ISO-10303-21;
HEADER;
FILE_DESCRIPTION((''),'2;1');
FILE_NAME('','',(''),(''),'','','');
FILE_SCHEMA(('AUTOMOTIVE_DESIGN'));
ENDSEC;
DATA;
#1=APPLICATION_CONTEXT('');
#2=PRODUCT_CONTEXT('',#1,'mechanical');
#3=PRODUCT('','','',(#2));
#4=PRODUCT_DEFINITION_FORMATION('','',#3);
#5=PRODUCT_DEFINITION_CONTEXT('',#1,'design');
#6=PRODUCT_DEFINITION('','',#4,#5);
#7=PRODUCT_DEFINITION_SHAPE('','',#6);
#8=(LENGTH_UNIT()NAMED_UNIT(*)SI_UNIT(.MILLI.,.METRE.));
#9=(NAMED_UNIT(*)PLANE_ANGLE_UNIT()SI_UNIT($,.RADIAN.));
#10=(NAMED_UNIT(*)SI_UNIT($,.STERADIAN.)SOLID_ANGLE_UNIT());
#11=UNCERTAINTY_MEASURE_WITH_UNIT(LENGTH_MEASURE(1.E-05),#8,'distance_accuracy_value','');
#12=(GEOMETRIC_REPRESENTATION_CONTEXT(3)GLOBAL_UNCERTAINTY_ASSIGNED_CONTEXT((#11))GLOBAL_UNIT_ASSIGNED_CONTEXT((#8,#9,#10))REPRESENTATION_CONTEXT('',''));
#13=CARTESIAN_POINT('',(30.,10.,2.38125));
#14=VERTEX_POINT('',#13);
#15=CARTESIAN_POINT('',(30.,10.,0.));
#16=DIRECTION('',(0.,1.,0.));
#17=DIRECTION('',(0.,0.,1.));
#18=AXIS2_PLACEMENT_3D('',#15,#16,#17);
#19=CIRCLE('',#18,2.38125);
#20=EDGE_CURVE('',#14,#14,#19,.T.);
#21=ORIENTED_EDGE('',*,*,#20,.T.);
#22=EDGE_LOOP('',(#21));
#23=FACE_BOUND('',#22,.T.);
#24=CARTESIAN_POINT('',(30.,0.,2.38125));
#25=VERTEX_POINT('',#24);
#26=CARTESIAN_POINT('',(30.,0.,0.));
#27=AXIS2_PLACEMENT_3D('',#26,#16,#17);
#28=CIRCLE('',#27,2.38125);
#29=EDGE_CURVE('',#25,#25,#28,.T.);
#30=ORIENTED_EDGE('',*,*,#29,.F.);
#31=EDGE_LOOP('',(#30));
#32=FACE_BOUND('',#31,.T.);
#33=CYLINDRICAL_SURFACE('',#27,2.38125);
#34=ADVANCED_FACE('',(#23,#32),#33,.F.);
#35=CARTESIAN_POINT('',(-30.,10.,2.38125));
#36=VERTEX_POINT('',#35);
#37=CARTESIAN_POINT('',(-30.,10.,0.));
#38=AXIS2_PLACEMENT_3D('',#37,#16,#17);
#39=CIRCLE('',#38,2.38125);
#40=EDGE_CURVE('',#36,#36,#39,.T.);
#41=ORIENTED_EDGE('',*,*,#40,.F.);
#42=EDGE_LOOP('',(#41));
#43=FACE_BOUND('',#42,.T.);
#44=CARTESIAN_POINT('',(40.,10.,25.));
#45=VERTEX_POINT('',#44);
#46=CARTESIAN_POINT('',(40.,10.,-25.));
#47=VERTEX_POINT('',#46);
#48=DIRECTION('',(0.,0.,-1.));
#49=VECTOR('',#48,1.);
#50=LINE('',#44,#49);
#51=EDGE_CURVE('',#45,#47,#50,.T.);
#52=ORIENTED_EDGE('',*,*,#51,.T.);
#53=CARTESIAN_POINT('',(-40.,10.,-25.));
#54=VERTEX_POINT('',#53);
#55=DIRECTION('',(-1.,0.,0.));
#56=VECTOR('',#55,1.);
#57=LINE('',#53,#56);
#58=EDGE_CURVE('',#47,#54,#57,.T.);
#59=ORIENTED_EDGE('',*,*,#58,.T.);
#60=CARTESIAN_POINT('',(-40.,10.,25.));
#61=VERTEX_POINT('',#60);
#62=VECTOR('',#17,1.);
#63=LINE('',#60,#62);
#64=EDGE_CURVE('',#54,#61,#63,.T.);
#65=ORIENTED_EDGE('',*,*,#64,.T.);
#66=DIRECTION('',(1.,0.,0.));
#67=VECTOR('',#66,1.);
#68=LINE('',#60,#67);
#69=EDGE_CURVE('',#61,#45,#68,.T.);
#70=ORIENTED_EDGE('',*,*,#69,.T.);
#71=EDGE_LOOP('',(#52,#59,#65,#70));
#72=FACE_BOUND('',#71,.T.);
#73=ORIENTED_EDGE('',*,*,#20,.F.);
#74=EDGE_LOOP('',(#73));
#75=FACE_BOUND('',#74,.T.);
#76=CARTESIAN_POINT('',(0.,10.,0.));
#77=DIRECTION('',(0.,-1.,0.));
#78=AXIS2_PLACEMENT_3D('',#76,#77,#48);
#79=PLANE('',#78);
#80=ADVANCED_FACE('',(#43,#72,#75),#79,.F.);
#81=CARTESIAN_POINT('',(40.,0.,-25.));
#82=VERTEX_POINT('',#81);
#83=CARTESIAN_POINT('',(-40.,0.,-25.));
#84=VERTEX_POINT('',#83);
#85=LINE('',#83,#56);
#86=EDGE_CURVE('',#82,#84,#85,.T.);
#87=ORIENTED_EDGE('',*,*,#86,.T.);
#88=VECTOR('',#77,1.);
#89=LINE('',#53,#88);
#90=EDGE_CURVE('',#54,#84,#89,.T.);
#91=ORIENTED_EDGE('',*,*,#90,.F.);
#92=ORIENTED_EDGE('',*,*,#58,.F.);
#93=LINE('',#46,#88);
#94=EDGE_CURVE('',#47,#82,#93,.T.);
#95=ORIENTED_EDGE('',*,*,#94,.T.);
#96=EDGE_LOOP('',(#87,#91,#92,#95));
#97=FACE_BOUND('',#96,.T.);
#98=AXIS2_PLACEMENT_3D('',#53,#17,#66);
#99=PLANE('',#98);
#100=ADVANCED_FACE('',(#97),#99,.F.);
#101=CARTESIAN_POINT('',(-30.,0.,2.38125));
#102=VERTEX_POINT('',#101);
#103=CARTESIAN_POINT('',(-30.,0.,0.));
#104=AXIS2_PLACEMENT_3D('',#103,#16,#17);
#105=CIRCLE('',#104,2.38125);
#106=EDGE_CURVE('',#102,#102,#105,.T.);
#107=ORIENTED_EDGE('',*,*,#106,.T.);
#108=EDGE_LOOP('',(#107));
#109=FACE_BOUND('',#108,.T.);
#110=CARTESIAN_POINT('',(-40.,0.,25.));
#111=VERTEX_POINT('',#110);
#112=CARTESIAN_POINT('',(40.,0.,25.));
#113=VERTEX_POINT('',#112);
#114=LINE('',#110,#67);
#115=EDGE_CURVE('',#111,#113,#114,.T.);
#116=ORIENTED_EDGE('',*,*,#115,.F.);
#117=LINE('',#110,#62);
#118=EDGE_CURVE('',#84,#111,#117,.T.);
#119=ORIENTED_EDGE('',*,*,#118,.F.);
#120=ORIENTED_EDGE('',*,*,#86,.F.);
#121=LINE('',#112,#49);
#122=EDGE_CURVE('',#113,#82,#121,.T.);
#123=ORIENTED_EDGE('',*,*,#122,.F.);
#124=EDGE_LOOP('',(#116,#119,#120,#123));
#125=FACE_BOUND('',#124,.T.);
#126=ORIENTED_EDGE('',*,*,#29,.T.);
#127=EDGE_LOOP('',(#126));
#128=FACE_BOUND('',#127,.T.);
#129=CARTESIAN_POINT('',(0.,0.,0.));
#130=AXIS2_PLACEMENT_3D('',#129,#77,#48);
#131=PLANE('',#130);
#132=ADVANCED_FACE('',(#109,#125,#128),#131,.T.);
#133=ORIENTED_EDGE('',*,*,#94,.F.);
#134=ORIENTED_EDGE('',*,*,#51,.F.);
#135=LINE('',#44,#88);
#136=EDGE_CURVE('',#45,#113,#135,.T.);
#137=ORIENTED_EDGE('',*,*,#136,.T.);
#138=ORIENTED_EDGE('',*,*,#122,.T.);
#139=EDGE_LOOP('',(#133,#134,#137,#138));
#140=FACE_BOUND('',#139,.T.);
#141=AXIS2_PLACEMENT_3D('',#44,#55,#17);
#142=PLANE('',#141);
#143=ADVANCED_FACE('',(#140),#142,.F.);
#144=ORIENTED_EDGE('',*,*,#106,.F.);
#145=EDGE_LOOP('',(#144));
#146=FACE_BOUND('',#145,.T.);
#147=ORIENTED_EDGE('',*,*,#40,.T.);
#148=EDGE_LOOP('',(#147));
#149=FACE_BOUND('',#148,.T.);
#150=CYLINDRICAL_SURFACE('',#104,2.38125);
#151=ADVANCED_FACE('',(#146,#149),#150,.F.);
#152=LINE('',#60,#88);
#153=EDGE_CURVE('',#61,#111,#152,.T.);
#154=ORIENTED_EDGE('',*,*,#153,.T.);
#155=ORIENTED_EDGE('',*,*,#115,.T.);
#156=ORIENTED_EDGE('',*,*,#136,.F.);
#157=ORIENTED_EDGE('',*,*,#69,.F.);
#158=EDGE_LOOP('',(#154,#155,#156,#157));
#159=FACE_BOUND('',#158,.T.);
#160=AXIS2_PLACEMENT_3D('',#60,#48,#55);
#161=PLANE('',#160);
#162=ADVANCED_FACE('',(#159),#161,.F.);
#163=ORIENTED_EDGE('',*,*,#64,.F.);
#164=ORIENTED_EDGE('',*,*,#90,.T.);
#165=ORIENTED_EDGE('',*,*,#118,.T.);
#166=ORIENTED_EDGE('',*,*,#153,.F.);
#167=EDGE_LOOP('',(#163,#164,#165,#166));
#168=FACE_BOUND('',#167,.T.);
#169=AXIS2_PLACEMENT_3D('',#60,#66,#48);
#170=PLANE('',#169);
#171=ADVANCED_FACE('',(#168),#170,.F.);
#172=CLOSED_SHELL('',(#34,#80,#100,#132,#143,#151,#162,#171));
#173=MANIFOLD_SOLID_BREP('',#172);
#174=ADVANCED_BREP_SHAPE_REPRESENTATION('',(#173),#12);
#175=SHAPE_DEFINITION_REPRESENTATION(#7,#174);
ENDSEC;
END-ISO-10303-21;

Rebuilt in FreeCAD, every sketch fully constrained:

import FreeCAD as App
import Part
import Sketcher
Q = App.Units.Quantity


def add_polygon(sketch, points):
    """Adds a closed chain of lines whose ends are joined by coincident constraints."""
    first, n = sketch.GeometryCount, len(points)
    for a, b in zip(points, points[1:] + points[:1]):
        sketch.addGeometry(Part.LineSegment(App.Vector(*a, 0), App.Vector(*b, 0)), False)
    for i in range(n):
        sketch.addConstraint(Sketcher.Constraint("Coincident", first + i, 2, first + (i + 1) % n, 1))

doc = App.newDocument("Part")
params = doc.addObject("Spreadsheet::Sheet", "Params")
for row, (alias, value) in enumerate([
    ("sketch1_width", "80 mm"),
    ("sketch1_height", "50 mm"),
    ("pad1_length", "10 mm"),
    ("pocket1_length", "10 mm"),
], start=1):
    params.set(f"A{row}", alias)
    params.set(f"B{row}", "=" + value)
    params.setAlias(f"B{row}", alias)

body = doc.addObject("PartDesign::Body", "Body")

# Sketch on XZ plane
sketch1 = doc.addObject("Sketcher::SketchObject", "Sketch")
body.addObject(sketch1)
sketch1.AttachmentSupport = (doc.XZ_Plane, [""])
sketch1.MapMode = "FlatFace"
add_polygon(sketch1, [(-40, -25), (-40, 25), (40, 25), (40, -25)])  # lines 0-3
sketch1.addConstraint([
    Sketcher.Constraint("Vertical", 0),
    Sketcher.Constraint("Horizontal", 1),
    Sketcher.Constraint("Vertical", 2),
    Sketcher.Constraint("Horizontal", 3),
    Sketcher.Constraint("Symmetric", 0, 2, 2, 2, -1, 1),
    Sketcher.Constraint("DistanceX", 1, 1, 1, 2, Q("80 mm")),
    Sketcher.Constraint("DistanceY", 0, 1, 0, 2, Q("50 mm")),
])
sketch1.setExpression("Constraints[9]", "Params.sketch1_width")
sketch1.setExpression("Constraints[10]", "Params.sketch1_height")
pad1 = doc.addObject("PartDesign::Pad", "Pad")
body.addObject(pad1)
pad1.Profile = sketch1
pad1.setExpression("Length", "Params.pad1_length")
pad1.Reversed = True

# Sketch on XZ plane
sketch2 = doc.addObject("Sketcher::SketchObject", "Sketch001")
body.addObject(sketch2)
sketch2.AttachmentSupport = (doc.XZ_Plane, [""])
sketch2.MapMode = "FlatFace"
sketch2.AttachmentOffset = App.Placement(App.Vector(0, 0, -10), App.Rotation())
sketch2.addGeometry([
    Part.Circle(App.Vector(-30, 0, 0), App.Vector(0, 0, 1), 2.38125),
    Part.Circle(App.Vector(30, 0, 0), App.Vector(0, 0, 1), 2.38125),
], False)
sketch2.addConstraint([
    Sketcher.Constraint("Equal", 0, 1),
    Sketcher.Constraint("Symmetric", 0, 3, 1, 3, -1, 1),
    Sketcher.Constraint("PointOnObject", 0, 3, -1),
    Sketcher.Constraint("DistanceX", 0, 3, -1, 1, Q("30 mm")),
    Sketcher.Constraint("Diameter", 0, Q("4.7625 mm")),
])
pocket1 = doc.addObject("PartDesign::Pocket", "Pocket")
body.addObject(pocket1)
pocket1.Profile = sketch2
pocket1.setExpression("Length", "Params.pocket1_length")
pocket1.Reversed = True

doc.recompute()
